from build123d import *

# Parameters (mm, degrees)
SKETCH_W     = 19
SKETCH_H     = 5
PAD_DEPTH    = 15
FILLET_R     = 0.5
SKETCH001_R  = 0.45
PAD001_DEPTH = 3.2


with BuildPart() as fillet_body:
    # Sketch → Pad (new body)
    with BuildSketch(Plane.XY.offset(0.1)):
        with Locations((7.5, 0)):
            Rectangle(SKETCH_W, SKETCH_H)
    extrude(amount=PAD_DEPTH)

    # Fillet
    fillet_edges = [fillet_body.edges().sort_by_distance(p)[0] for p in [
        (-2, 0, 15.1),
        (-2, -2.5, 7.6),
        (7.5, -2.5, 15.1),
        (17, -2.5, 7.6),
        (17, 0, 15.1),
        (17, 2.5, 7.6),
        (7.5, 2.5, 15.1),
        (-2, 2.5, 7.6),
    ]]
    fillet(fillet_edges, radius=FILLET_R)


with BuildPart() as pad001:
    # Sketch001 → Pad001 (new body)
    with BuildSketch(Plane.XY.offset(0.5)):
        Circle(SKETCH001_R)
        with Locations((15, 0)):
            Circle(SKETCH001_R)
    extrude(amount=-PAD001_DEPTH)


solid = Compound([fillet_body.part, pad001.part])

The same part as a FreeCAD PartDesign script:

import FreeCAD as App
import Part
import Sketcher

V = App.Vector


def edges_at(feature, points):
    """Names of the edges that pass closest to the given points."""
    edges = feature.Shape.Edges
    near = lambda p: min(range(len(edges)), key=lambda i: edges[i].distToShape(Part.Vertex(*p))[0])
    return sorted({f"Edge{near(p) + 1}" for p in points})


def add_polygon(sketch, points):
    """Adds a closed chain of lines whose ends are joined by coincident constraints."""
    first, n = sketch.GeometryCount, len(points)
    for a, b in zip(points, points[1:] + points[:1]):
        sketch.addGeometry(Part.LineSegment(App.Vector(*a, 0), App.Vector(*b, 0)), False)
    for i in range(n):
        sketch.addConstraint(Sketcher.Constraint("Coincident", first + i, 2, first + (i + 1) % n, 1))

doc = App.newDocument("Part")
body = doc.addObject("PartDesign::Body", "Body")

# Sketch on XY plane
sketch1 = body.newObject("Sketcher::SketchObject", "Sketch")
sketch1.AttachmentSupport = (doc.getObject("XY_Plane"), [""])
sketch1.MapMode = "FlatFace"
sketch1.AttachmentOffset = App.Placement(V(0, 0, 0.1), App.Rotation())
add_polygon(sketch1, [(-2, 2.5), (-2, -2.5), (17, -2.5), (17, 2.5)])  # lines 0-3
sketch1.addConstraint(Sketcher.Constraint("Vertical", 0))
sketch1.addConstraint(Sketcher.Constraint("Horizontal", 1))
sketch1.addConstraint(Sketcher.Constraint("Vertical", 2))
sketch1.addConstraint(Sketcher.Constraint("Horizontal", 3))
sketch1.addConstraint(Sketcher.Constraint("DistanceX", 1, 1, 1, 2, 19.0))
sketch1.addConstraint(Sketcher.Constraint("DistanceY", 0, 2, 0, 1, 5.0))
sketch1.addConstraint(Sketcher.Constraint("DistanceX", 0, 2, -1, 1, 2.0))
sketch1.addConstraint(Sketcher.Constraint("DistanceY", 0, 2, -1, 1, 2.5))
pad1 = body.newObject("PartDesign::Pad", "Pad")
pad1.Profile = sketch1
pad1.Length = 15
doc.recompute()

fillet = body.newObject("PartDesign::Fillet", "Fillet")
fillet.Base = (pad1, edges_at(pad1, [
    (-2, 0, 15.1),
    (-2, -2.5, 7.6),
    (7.5, -2.5, 15.1),
    (17, -2.5, 7.6),
    (17, 0, 15.1),
    (17, 2.5, 7.6),
    (7.5, 2.5, 15.1),
    (-2, 2.5, 7.6),
]))
fillet.Radius = 0.5
body2 = doc.addObject("PartDesign::Body", "Body001")
body2.AllowCompound = True

# Sketch on XY plane
sketch2 = body2.newObject("Sketcher::SketchObject", "Sketch001")
sketch2.AttachmentSupport = (doc.getObject("XY_Plane001"), [""])
sketch2.MapMode = "FlatFace"
sketch2.AttachmentOffset = App.Placement(V(0, 0, 0.5), App.Rotation())
sketch2.addGeometry(Part.Circle(V(0, 0, 0), V(0, 0, 1), 0.45), False)
sketch2.addGeometry(Part.Circle(V(15, 0, 0), V(0, 0, 1), 0.45), False)
sketch2.addConstraint(Sketcher.Constraint("Coincident", 0, 3, -1, 1))
sketch2.addConstraint(Sketcher.Constraint("Equal", 0, 1))
sketch2.addConstraint(Sketcher.Constraint("PointOnObject", 1, 3, -1))
sketch2.addConstraint(Sketcher.Constraint("Diameter", 0, 0.9))
sketch2.addConstraint(Sketcher.Constraint("DistanceX", -1, 1, 1, 3, 15.0))
pad2 = body2.newObject("PartDesign::Pad", "Pad001")
pad2.Profile = sketch2
pad2.Length = 3.2
pad2.Reversed = True

doc.recompute()
